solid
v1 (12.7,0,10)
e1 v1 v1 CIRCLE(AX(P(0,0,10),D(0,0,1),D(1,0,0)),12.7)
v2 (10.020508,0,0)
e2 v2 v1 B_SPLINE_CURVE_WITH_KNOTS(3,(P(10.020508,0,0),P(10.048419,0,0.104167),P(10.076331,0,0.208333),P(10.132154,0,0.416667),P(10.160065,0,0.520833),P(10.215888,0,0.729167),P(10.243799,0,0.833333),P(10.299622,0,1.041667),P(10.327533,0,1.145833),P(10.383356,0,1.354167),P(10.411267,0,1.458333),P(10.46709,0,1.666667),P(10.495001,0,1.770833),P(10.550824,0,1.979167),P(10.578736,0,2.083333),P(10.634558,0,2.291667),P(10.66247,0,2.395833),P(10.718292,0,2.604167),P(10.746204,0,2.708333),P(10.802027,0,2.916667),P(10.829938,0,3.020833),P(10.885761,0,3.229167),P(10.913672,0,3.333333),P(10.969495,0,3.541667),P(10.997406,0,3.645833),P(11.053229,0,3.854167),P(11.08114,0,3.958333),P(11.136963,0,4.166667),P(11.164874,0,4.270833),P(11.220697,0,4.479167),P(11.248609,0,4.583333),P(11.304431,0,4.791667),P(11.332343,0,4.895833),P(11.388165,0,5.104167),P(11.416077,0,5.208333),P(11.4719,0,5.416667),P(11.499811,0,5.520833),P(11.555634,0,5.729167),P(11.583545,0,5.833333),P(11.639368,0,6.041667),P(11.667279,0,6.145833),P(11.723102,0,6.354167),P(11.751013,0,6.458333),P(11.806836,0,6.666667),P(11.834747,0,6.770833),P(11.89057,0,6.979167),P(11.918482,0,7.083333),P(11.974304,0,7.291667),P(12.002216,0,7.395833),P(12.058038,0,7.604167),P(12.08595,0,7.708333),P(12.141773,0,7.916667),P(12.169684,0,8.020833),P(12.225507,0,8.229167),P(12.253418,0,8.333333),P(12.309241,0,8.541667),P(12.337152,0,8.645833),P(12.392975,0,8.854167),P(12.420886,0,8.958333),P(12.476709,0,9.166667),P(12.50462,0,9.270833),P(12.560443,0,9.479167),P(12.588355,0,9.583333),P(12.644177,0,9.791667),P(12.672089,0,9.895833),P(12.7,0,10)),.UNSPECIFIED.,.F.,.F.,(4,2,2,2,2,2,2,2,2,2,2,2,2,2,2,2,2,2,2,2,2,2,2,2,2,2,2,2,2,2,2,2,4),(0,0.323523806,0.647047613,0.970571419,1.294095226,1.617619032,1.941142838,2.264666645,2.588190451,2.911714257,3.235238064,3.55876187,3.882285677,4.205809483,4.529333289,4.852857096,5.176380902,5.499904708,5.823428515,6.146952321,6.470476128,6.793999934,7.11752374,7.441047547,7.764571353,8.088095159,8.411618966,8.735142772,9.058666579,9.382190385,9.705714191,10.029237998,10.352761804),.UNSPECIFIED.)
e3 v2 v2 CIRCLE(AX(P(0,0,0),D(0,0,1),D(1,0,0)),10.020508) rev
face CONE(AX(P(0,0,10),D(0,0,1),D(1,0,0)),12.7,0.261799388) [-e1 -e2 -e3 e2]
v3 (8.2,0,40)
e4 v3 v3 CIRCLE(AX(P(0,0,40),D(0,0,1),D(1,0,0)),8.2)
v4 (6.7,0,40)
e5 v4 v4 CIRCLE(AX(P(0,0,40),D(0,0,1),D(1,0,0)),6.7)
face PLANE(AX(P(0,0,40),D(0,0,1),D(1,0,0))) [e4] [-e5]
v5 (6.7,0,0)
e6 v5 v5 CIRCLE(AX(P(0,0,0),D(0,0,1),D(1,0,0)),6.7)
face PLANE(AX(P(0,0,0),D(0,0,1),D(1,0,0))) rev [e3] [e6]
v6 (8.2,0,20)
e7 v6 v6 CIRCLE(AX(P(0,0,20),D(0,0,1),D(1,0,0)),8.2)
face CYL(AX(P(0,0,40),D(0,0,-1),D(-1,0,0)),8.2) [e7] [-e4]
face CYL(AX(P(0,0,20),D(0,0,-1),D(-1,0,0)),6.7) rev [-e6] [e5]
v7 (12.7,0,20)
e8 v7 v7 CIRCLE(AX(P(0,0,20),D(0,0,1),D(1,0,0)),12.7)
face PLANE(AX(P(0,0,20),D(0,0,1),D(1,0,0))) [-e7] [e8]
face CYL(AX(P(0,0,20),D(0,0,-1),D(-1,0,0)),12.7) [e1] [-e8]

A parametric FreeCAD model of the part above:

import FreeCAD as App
import Part
import Sketcher

V = App.Vector


def edges_at(feature, points):
    """Names of the edges that pass closest to the given points."""
    edges = feature.Shape.Edges
    near = lambda p: min(range(len(edges)), key=lambda i: edges[i].distToShape(Part.Vertex(*p))[0])
    return sorted({f"Edge{near(p) + 1}" for p in points})

doc = App.newDocument("Part")
body = doc.addObject("PartDesign::Body", "Body")

# Sketch on XY plane
sketch1 = body.newObject("Sketcher::SketchObject", "Sketch")
sketch1.AttachmentSupport = (doc.getObject("XY_Plane"), [""])
sketch1.MapMode = "FlatFace"
sketch1.addGeometry(Part.Circle(V(0, 0, 0), V(0, 0, 1), 13), False)
sketch1.addGeometry(Part.Circle(V(0, 0, 0), V(0, 0, 1), 7), False)
sketch1.addConstraint(Sketcher.Constraint("Coincident", 0, 3, -1, 1))
sketch1.addConstraint(Sketcher.Constraint("Coincident", 1, 3, -1, 1))
sketch1.addConstraint(Sketcher.Constraint("Diameter", 0, 25.4))
sketch1.addConstraint(Sketcher.Constraint("Diameter", 1, 13.4))
pad1 = body.newObject("PartDesign::Pad", "Pad")
pad1.Profile = sketch1
pad1.Length = 20

# Sketch on XY plane
sketch2 = body.newObject("Sketcher::SketchObject", "Sketch001")
sketch2.AttachmentSupport = (doc.getObject("XY_Plane"), [""])
sketch2.MapMode = "FlatFace"
sketch2.AttachmentOffset = App.Placement(V(0, 0, 20), App.Rotation())
sketch2.addGeometry(Part.Circle(V(0, 0, 0), V(0, 0, 1), 8), False)
sketch2.addGeometry(Part.Circle(V(0, 0, 0), V(0, 0, 1), 7), False)
sketch2.addConstraint(Sketcher.Constraint("Coincident", 0, 3, -1, 1))
sketch2.addConstraint(Sketcher.Constraint("Coincident", 1, 3, -1, 1))
sketch2.addConstraint(Sketcher.Constraint("Diameter", 0, 16.4))
sketch2.addConstraint(Sketcher.Constraint("Diameter", 1, 13.4))
pad2 = body.newObject("PartDesign::Pad", "Pad001")
pad2.Profile = sketch2
pad2.Length = 20
doc.recompute()

chamfer = body.newObject("PartDesign::Chamfer", "Chamfer")
chamfer.Base = (pad2, edges_at(pad2, [(-12.7, 0, 0)]))
chamfer.ChamferType = "Two distances"
chamfer.Size = 10
chamfer.Size2 = 2.679492

doc.recompute()
